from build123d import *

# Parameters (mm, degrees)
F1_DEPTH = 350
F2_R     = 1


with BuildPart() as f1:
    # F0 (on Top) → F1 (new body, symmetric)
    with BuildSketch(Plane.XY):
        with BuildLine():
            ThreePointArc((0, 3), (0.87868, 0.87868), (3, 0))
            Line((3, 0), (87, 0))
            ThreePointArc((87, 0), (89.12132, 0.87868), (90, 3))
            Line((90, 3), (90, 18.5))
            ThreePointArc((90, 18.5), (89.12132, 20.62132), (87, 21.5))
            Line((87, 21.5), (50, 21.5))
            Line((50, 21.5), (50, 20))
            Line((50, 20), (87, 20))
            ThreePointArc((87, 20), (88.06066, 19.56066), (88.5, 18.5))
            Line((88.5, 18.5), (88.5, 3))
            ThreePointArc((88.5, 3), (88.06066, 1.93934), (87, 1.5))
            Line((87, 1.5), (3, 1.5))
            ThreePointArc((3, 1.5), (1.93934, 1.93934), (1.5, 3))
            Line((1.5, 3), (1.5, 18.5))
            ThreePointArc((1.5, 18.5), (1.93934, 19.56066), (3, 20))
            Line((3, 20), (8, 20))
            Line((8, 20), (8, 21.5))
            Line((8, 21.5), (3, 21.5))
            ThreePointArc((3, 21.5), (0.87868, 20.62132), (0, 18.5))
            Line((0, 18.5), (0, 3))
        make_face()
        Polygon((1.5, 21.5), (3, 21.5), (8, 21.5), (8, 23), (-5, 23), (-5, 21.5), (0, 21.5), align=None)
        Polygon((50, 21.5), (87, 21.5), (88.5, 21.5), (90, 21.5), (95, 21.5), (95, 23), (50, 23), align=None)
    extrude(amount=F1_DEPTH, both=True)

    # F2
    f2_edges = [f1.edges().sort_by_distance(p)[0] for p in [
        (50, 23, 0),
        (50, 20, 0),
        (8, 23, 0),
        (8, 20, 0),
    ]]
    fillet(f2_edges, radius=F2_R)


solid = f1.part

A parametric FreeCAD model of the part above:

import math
import FreeCAD as App
import Part
import Sketcher

V = App.Vector


def edges_at(feature, points):
    """Names of the edges that pass closest to the given points."""
    edges = feature.Shape.Edges
    near = lambda p: min(range(len(edges)), key=lambda i: edges[i].distToShape(Part.Vertex(*p))[0])
    return sorted({f"Edge{near(p) + 1}" for p in points})

doc = App.newDocument("Part")
params = doc.addObject("Spreadsheet::Sheet", "Params")
for row, (alias, value) in enumerate([
    ("sketch1_radius", "3.000001 mm"),
    ("sketch1_radius2", "1.500001 mm"),
    ("sketch1_width", "84 mm"),
    ("sketch1_width2", "8 mm"),
    ("sketch1_width3", "45 mm"),
    ("pad1_length", "700 mm"),
    ("fillet_radius", "1 mm"),
], start=1):
    params.set(f"A{row}", alias)
    params.set(f"B{row}", "=" + value)
    params.setAlias(f"B{row}", alias)

body = doc.addObject("PartDesign::Body", "Body")

sketch1 = body.newObject("Sketcher::SketchObject", "Sketch")
sketch1.AttachmentSupport = (doc.getObject("XY_Plane"), [""])
sketch1.MapMode = "FlatFace"
sketch1.addGeometry(Part.ArcOfCircle(Part.Circle(V(3, 3, 0), V(0, 0, 1), 3), math.radians(-180), math.radians(-90)), False)
sketch1.addGeometry(Part.LineSegment(V(3, 0, 0), V(87, 0, 0)), False)
sketch1.addGeometry(Part.ArcOfCircle(Part.Circle(V(87, 3, 0), V(0, 0, 1), 3), math.radians(-90), math.radians(0)), False)
sketch1.addGeometry(Part.LineSegment(V(90, 3, 0), V(90, 18.5, 0)), False)
sketch1.addGeometry(Part.ArcOfCircle(Part.Circle(V(87, 18.5, 0), V(0, 0, 1), 3), math.radians(0), math.radians(90)), False)
sketch1.addGeometry(Part.LineSegment(V(87, 21.5, 0), V(95, 21.5, 0)), False)
sketch1.addGeometry(Part.LineSegment(V(95, 21.5, 0), V(95, 23, 0)), False)
sketch1.addGeometry(Part.LineSegment(V(95, 23, 0), V(50, 23, 0)), False)
sketch1.addGeometry(Part.LineSegment(V(50, 23, 0), V(50, 20, 0)), False)
sketch1.addGeometry(Part.LineSegment(V(50, 20, 0), V(87, 20, 0)), False)
sketch1.addGeometry(Part.ArcOfCircle(Part.Circle(V(87, 18.5, 0), V(0, 0, 1), 1.5), math.radians(0), math.radians(90)), False)
sketch1.addGeometry(Part.LineSegment(V(88.5, 18.5, 0), V(88.5, 3, 0)), False)
sketch1.addGeometry(Part.ArcOfCircle(Part.Circle(V(87, 3, 0), V(0, 0, 1), 1.5), math.radians(-90), math.radians(0)), False)
sketch1.addGeometry(Part.LineSegment(V(87, 1.5, 0), V(3, 1.5, 0)), False)
sketch1.addGeometry(Part.ArcOfCircle(Part.Circle(V(3, 3, 0), V(0, 0, 1), 1.5), math.radians(-180), math.radians(-90)), False)
sketch1.addGeometry(Part.LineSegment(V(1.5, 3, 0), V(1.5, 18.5, 0)), False)
sketch1.addGeometry(Part.ArcOfCircle(Part.Circle(V(3, 18.5, 0), V(0, 0, 1), 1.5), math.radians(90), math.radians(180)), False)
sketch1.addGeometry(Part.LineSegment(V(3, 20, 0), V(8, 20, 0)), False)
sketch1.addGeometry(Part.LineSegment(V(8, 20, 0), V(8, 23, 0)), False)
sketch1.addGeometry(Part.LineSegment(V(8, 23, 0), V(-5, 23, 0)), False)
sketch1.addGeometry(Part.LineSegment(V(-5, 23, 0), V(-5, 21.5, 0)), False)
sketch1.addGeometry(Part.LineSegment(V(-5, 21.5, 0), V(3, 21.5, 0)), False)
sketch1.addGeometry(Part.ArcOfCircle(Part.Circle(V(3, 18.5, 0), V(0, 0, 1), 3), math.radians(90), math.radians(180)), False)
sketch1.addGeometry(Part.LineSegment(V(0, 18.5, 0), V(0, 3, 0)), False)
sketch1.addConstraint(Sketcher.Constraint("Tangent", 0, 2, 1, 1))
sketch1.addConstraint(Sketcher.Constraint("Tangent", 1, 2, 2, 1))
sketch1.addConstraint(Sketcher.Constraint("Tangent", 2, 2, 3, 1))
sketch1.addConstraint(Sketcher.Constraint("Tangent", 3, 2, 4, 1))
sketch1.addConstraint(Sketcher.Constraint("Tangent", 4, 2, 5, 1))
sketch1.addConstraint(Sketcher.Constraint("Coincident", 5, 2, 6, 1))
sketch1.addConstraint(Sketcher.Constraint("Coincident", 6, 2, 7, 1))
sketch1.addConstraint(Sketcher.Constraint("Coincident", 7, 2, 8, 1))
sketch1.addConstraint(Sketcher.Constraint("Coincident", 8, 2, 9, 1))
sketch1.addConstraint(Sketcher.Constraint("Tangent", 9, 2, 10, 2))
sketch1.addConstraint(Sketcher.Constraint("Tangent", 10, 1, 11, 1))
sketch1.addConstraint(Sketcher.Constraint("Tangent", 11, 2, 12, 2))
sketch1.addConstraint(Sketcher.Constraint("Tangent", 12, 1, 13, 1))
sketch1.addConstraint(Sketcher.Constraint("Tangent", 13, 2, 14, 2))
sketch1.addConstraint(Sketcher.Constraint("Tangent", 14, 1, 15, 1))
sketch1.addConstraint(Sketcher.Constraint("Tangent", 15, 2, 16, 2))
sketch1.addConstraint(Sketcher.Constraint("Tangent", 16, 1, 17, 1))
sketch1.addConstraint(Sketcher.Constraint("Coincident", 17, 2, 18, 1))
sketch1.addConstraint(Sketcher.Constraint("Coincident", 18, 2, 19, 1))
sketch1.addConstraint(Sketcher.Constraint("Coincident", 19, 2, 20, 1))
sketch1.addConstraint(Sketcher.Constraint("Coincident", 20, 2, 21, 1))
sketch1.addConstraint(Sketcher.Constraint("Tangent", 21, 2, 22, 1))
sketch1.addConstraint(Sketcher.Constraint("Tangent", 22, 2, 23, 1))
sketch1.addConstraint(Sketcher.Constraint("Tangent", 23, 2, 0, 1))
sketch1.addConstraint(Sketcher.Constraint("Horizontal", 1))
sketch1.addConstraint(Sketcher.Constraint("Vertical", 3))
sketch1.addConstraint(Sketcher.Constraint("Horizontal", 5))
sketch1.addConstraint(Sketcher.Constraint("Vertical", 6))
sketch1.addConstraint(Sketcher.Constraint("Horizontal", 7))
sketch1.addConstraint(Sketcher.Constraint("Vertical", 8))
sketch1.addConstraint(Sketcher.Constraint("Horizontal", 9))
sketch1.addConstraint(Sketcher.Constraint("Vertical", 11))
sketch1.addConstraint(Sketcher.Constraint("Horizontal", 13))
sketch1.addConstraint(Sketcher.Constraint("Vertical", 15))
sketch1.addConstraint(Sketcher.Constraint("Horizontal", 17))
sketch1.addConstraint(Sketcher.Constraint("Vertical", 18))
sketch1.addConstraint(Sketcher.Constraint("Horizontal", 19))
sketch1.addConstraint(Sketcher.Constraint("Vertical", 20))
sketch1.addConstraint(Sketcher.Constraint("Horizontal", 21))
sketch1.addConstraint(Sketcher.Constraint("Vertical", 23))
sketch1.addConstraint(Sketcher.Constraint("Coincident", 10, 3, 4, 3))
sketch1.addConstraint(Sketcher.Constraint("Coincident", 12, 3, 2, 3))
sketch1.addConstraint(Sketcher.Constraint("Coincident", 14, 3, 0, 3))
sketch1.addConstraint(Sketcher.Constraint("Coincident", 22, 3, 16, 3))
sketch1.addConstraint(Sketcher.Constraint("Equal", 0, 2))
sketch1.addConstraint(Sketcher.Constraint("Equal", 2, 4))
sketch1.addConstraint(Sketcher.Constraint("Equal", 14, 16))
sketch1.addConstraint(Sketcher.Constraint("PointOnObject", 0, 2, -1))
sketch1.addConstraint(Sketcher.Constraint("PointOnObject", 22, 2, -2))
sketch1.addConstraint(Sketcher.Constraint("Horizontal", 10, 3, 16, 3))
sketch1.addConstraint(Sketcher.Constraint("Horizontal", 7, 2, 18, 2))
sketch1.addConstraint(Sketcher.Constraint("Equal", 5, 21))
sketch1.addConstraint(Sketcher.Constraint("Radius", 0, 3.000001))
sketch1.addConstraint(Sketcher.Constraint("Radius", 10, 1.500001))
sketch1.addConstraint(Sketcher.Constraint("DistanceX", 1, 1, 1, 2, 84.0))
sketch1.addConstraint(Sketcher.Constraint("DistanceX", 5, 1, 5, 2, 8.0))
sketch1.addConstraint(Sketcher.Constraint("DistanceX", 7, 2, 7, 1, 45.0))
sketch1.addConstraint(Sketcher.Constraint("DistanceX", 17, 1, 17, 2, 5.0))
sketch1.addConstraint(Sketcher.Constraint("DistanceY", 8, 2, 8, 1, 3.0))
sketch1.addConstraint(Sketcher.Constraint("DistanceY", 3, 1, 3, 2, 15.5))
sketch1.setExpression("Constraints[52]", "Params.sketch1_radius")
sketch1.setExpression("Constraints[53]", "Params.sketch1_radius2")
sketch1.setExpression("Constraints[54]", "Params.sketch1_width")
sketch1.setExpression("Constraints[55]", "Params.sketch1_width2")
sketch1.setExpression("Constraints[56]", "Params.sketch1_width3")
pad1 = body.newObject("PartDesign::Pad", "Pad")
pad1.Profile = sketch1
pad1.setExpression("Length", "Params.pad1_length")
pad1.Midplane = True
doc.recompute()

fillet = body.newObject("PartDesign::Fillet", "Fillet")
fillet.Base = (pad1, edges_at(pad1, [
    (50, 23, 0),
    (50, 20, 0),
    (8, 23, 0),
    (8, 20, 0),
]))
fillet.setExpression("Radius", "Params.fillet_radius")

doc.recompute()
